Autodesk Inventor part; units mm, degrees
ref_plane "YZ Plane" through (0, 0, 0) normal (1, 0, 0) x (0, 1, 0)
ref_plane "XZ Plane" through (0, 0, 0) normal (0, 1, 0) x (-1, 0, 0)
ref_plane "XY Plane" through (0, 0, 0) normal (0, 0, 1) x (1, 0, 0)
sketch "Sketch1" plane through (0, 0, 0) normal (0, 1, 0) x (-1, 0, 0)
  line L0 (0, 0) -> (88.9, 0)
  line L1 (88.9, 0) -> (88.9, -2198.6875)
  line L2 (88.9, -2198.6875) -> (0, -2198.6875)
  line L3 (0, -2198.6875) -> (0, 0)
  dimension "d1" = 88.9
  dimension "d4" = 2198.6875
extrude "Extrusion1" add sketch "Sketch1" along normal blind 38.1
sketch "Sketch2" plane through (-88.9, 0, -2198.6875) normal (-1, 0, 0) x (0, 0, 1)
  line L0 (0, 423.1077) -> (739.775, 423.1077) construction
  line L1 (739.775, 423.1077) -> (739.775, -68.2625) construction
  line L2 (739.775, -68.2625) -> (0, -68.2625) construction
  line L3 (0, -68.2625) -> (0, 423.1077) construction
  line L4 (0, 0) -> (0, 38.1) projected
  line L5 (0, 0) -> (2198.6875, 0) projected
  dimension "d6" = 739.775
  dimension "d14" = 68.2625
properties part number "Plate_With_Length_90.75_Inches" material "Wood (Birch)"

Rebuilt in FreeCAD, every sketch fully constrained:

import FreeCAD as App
import Part
import Sketcher
Q = App.Units.Quantity


def add_polygon(sketch, points):
    """Adds a closed chain of lines whose ends are joined by coincident constraints."""
    first, n = sketch.GeometryCount, len(points)
    for a, b in zip(points, points[1:] + points[:1]):
        sketch.addGeometry(Part.LineSegment(App.Vector(*a, 0), App.Vector(*b, 0)), False)
    for i in range(n):
        sketch.addConstraint(Sketcher.Constraint("Coincident", first + i, 2, first + (i + 1) % n, 1))

doc = App.newDocument("Part")
body = doc.addObject("PartDesign::Body", "Body")

# Sketch on XZ plane
sketch1 = body.newObject("Sketcher::SketchObject", "Sketch")
sketch1.AttachmentSupport = (doc.getObject("XZ_Plane"), [""])
sketch1.MapMode = "FlatFace"
add_polygon(sketch1, [(-88.9, 0), (0, 0), (0, -2198.6875), (-88.9, -2198.6875)])  # lines 0-3
sketch1.addConstraint(Sketcher.Constraint("Horizontal", 0))
sketch1.addConstraint(Sketcher.Constraint("Vertical", 1))
sketch1.addConstraint(Sketcher.Constraint("Horizontal", 2))
sketch1.addConstraint(Sketcher.Constraint("Vertical", 3))
sketch1.addConstraint(Sketcher.Constraint("Coincident", 0, 2, -1, 1))
sketch1.addConstraint(Sketcher.Constraint("DistanceX", 0, 1, 0, 2, Q("3.5 in")))
sketch1.addConstraint(Sketcher.Constraint("DistanceY", 1, 2, 1, 1, Q("86.5625 in")))
pad1 = body.newObject("PartDesign::Pad", "Pad")
pad1.Profile = sketch1
pad1.Length = Q("1.5 in")
pad1.Reversed = True

doc.recompute()
